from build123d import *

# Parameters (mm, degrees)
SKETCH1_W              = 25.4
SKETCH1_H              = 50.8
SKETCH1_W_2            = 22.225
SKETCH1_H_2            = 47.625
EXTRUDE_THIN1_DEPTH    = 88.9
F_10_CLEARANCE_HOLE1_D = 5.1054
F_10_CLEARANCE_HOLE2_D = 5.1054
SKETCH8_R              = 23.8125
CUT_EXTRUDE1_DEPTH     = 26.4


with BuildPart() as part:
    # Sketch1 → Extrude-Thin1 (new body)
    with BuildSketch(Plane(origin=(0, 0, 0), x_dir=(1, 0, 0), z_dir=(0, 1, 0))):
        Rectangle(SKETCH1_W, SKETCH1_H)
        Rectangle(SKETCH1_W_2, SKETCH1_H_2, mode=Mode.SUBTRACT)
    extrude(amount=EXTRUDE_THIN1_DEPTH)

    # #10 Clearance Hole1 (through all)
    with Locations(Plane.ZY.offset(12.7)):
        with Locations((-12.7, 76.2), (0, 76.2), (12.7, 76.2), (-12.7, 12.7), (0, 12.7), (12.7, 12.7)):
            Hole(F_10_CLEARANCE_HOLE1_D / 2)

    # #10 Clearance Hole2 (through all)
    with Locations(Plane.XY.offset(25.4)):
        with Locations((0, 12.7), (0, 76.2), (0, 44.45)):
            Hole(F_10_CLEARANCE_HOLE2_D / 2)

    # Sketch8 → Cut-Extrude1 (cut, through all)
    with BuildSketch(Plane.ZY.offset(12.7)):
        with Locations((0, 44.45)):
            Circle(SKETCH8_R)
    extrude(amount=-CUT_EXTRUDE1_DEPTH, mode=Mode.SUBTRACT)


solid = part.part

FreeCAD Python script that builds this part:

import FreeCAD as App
import Part
import Sketcher
from FreeCAD import Vector
Q = App.Units.Quantity

doc = App.newDocument("Part")
body = doc.addObject("PartDesign::Body", "Body")

# Sketch on XZ plane
sketch1 = body.newObject("Sketcher::SketchObject", "Sketch")
sketch1.AttachmentSupport = (doc.getObject("XZ_Plane"), [""])
sketch1.MapMode = "FlatFace"
sketch1.addGeometry([
    Part.LineSegment(Vector(-13, -25, 0), Vector(-13, 25, 0)),  # 0
    Part.LineSegment(Vector(-13, 25, 0), Vector(13, 25, 0)),  # 1
    Part.LineSegment(Vector(13, 25, 0), Vector(13, -25, 0)),  # 2
    Part.LineSegment(Vector(13, -25, 0), Vector(-13, -25, 0)),  # 3
    Part.LineSegment(Vector(11, 24, 0), Vector(-11, 24, 0)),  # 4
    Part.LineSegment(Vector(-11, 24, 0), Vector(-11, -24, 0)),  # 5
    Part.LineSegment(Vector(-11, -24, 0), Vector(11, -24, 0)),  # 6
    Part.LineSegment(Vector(11, -24, 0), Vector(11, 24, 0)),  # 7
], False)
sketch1.addConstraint([
    Sketcher.Constraint("Coincident", 0, 2, 1, 1),
    Sketcher.Constraint("Coincident", 1, 2, 2, 1),
    Sketcher.Constraint("Coincident", 2, 2, 3, 1),
    Sketcher.Constraint("Coincident", 3, 2, 0, 1),
    Sketcher.Constraint("Coincident", 4, 2, 5, 1),
    Sketcher.Constraint("Coincident", 5, 2, 6, 1),
    Sketcher.Constraint("Coincident", 6, 2, 7, 1),
    Sketcher.Constraint("Coincident", 7, 2, 4, 1),
    Sketcher.Constraint("Vertical", 0),
    Sketcher.Constraint("Horizontal", 1),
    Sketcher.Constraint("Vertical", 2),
    Sketcher.Constraint("Horizontal", 3),
    Sketcher.Constraint("Horizontal", 4),
    Sketcher.Constraint("Vertical", 5),
    Sketcher.Constraint("Horizontal", 6),
    Sketcher.Constraint("Vertical", 7),
    Sketcher.Constraint("Symmetric", 0, 2, 2, 2, -1, 1),
    Sketcher.Constraint("Symmetric", 4, 2, 6, 2, -1, 1),
    Sketcher.Constraint("DistanceX", 1, 1, 1, 2, Q("1 in")),
    Sketcher.Constraint("DistanceY", 0, 1, 0, 2, Q("2 in")),
    Sketcher.Constraint("DistanceX", 4, 2, 4, 1, Q("0.875 in")),
    Sketcher.Constraint("DistanceY", 5, 2, 5, 1, Q("1.875 in")),
])
pad1 = body.newObject("PartDesign::Pad", "Pad")
pad1.Profile = sketch1
pad1.Length = Q("3.5 in")
pad1.Reversed = True

# Sketch on YZ plane
sketch2 = body.newObject("Sketcher::SketchObject", "Sketch001")
sketch2.AttachmentSupport = (doc.getObject("YZ_Plane"), [""])
sketch2.MapMode = "FlatFace"
sketch2.AttachmentOffset = App.Placement(Vector(0, 0, -0.5 * 25.4), App.Rotation())
sketch2.addGeometry([
    Part.Circle(Vector(76.2, -12.7, 0), Vector(0, 0, 1), 2.6),  # 0
    Part.Circle(Vector(76.2, 0, 0), Vector(0, 0, 1), 2.6),  # 1
    Part.Circle(Vector(76.2, 12.7, 0), Vector(0, 0, 1), 2.6),  # 2
    Part.Circle(Vector(12.7, -12.7, 0), Vector(0, 0, 1), 2.6),  # 3
    Part.Circle(Vector(12.7, 0, 0), Vector(0, 0, 1), 2.6),  # 4
    Part.Circle(Vector(12.7, 12.7, 0), Vector(0, 0, 1), 2.6),  # 5
], False)
sketch2.addConstraint([
    Sketcher.Constraint("Equal", 0, 1),
    Sketcher.Constraint("Equal", 1, 2),
    Sketcher.Constraint("Equal", 2, 3),
    Sketcher.Constraint("Equal", 3, 4),
    Sketcher.Constraint("Equal", 4, 5),
    Sketcher.Constraint("Symmetric", 0, 3, 2, 3, -1),
    Sketcher.Constraint("Symmetric", 3, 3, 5, 3, -1),
    Sketcher.Constraint("PointOnObject", 1, 3, -1),
    Sketcher.Constraint("PointOnObject", 4, 3, -1),
    Sketcher.Constraint("Horizontal", 0, 3, 3, 3),
    Sketcher.Constraint("Vertical", 0, 3, 1, 3),
    Sketcher.Constraint("Vertical", 3, 3, 4, 3),
    Sketcher.Constraint("Diameter", 0, Q("0.201 in")),
    Sketcher.Constraint("DistanceX", -1, 1, 0, 3, Q("3 in")),
    Sketcher.Constraint("DistanceY", 0, 3, 2, 3, Q("1 in")),
    Sketcher.Constraint("DistanceX", -1, 1, 3, 3, Q("0.5 in")),
])
doc.recompute()
hole = body.newObject("PartDesign::Hole", "Hole")
hole.Profile = sketch2
hole.ThreadType = "None"
hole.Diameter = Q("0.201 in")
hole.DepthType = "ThroughAll"
hole.Reversed = True

# Sketch on XY plane
sketch3 = body.newObject("Sketcher::SketchObject", "Sketch002")
sketch3.AttachmentSupport = (doc.getObject("XY_Plane"), [""])
sketch3.MapMode = "FlatFace"
sketch3.AttachmentOffset = App.Placement(Vector(0, 0, 1 * 25.4), App.Rotation())
sketch3.addGeometry([
    Part.Circle(Vector(0, 12.7, 0), Vector(0, 0, 1), 2.6),
    Part.Circle(Vector(0, 76.2, 0), Vector(0, 0, 1), 2.6),
    Part.Circle(Vector(0, 44.5, 0), Vector(0, 0, 1), 2.6),
], False)
sketch3.addConstraint([
    Sketcher.Constraint("Equal", 0, 1),
    Sketcher.Constraint("Equal", 1, 2),
    Sketcher.Constraint("PointOnObject", 0, 3, -2),
    Sketcher.Constraint("PointOnObject", 1, 3, -2),
    Sketcher.Constraint("PointOnObject", 2, 3, -2),
    Sketcher.Constraint("Diameter", 0, Q("0.201 in")),
    Sketcher.Constraint("DistanceY", -1, 1, 1, 3, Q("3 in")),
    Sketcher.Constraint("DistanceY", -1, 1, 0, 3, Q("0.5 in")),
    Sketcher.Constraint("DistanceY", -1, 1, 2, 3, Q("1.75 in")),
])
doc.recompute()
hole2 = body.newObject("PartDesign::Hole", "Hole001")
hole2.Profile = sketch3
hole2.ThreadType = "None"
hole2.Diameter = Q("0.201 in")
hole2.DepthType = "ThroughAll"

# Sketch on YZ plane
sketch4 = body.newObject("Sketcher::SketchObject", "Sketch003")
sketch4.AttachmentSupport = (doc.getObject("YZ_Plane"), [""])
sketch4.MapMode = "FlatFace"
sketch4.AttachmentOffset = App.Placement(Vector(0, 0, -0.5 * 25.4), App.Rotation())
sketch4.addGeometry(Part.Circle(Vector(44, 0, 0), Vector(0, 0, 1), 24), False)
sketch4.addConstraint([
    Sketcher.Constraint("PointOnObject", 0, 3, -1),
    Sketcher.Constraint("Diameter", 0, Q("1.875 in")),
    Sketcher.Constraint("DistanceX", -1, 1, 0, 3, Q("1.75 in")),
])
pocket1 = body.newObject("PartDesign::Pocket", "Pocket")
pocket1.Profile = sketch4
pocket1.Type = "ThroughAll"
pocket1.Reversed = True

doc.recompute()
